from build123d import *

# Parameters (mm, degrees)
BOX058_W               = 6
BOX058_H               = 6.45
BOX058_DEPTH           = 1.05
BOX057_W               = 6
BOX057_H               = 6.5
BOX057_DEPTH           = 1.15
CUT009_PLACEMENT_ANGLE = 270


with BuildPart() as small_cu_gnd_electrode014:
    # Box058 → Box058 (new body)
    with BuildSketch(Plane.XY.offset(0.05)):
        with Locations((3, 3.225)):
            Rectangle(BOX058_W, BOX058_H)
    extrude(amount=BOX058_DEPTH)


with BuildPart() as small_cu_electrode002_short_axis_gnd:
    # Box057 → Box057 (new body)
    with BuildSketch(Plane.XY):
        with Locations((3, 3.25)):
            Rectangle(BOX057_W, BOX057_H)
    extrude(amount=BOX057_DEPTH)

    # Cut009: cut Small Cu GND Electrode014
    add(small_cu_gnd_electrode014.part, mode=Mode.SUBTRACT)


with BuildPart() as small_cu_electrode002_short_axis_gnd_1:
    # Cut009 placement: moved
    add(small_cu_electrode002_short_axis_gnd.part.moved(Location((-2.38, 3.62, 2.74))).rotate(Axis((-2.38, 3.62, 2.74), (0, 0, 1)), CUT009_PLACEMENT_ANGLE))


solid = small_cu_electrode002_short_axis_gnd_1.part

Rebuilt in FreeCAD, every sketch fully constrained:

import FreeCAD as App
import Part
import Sketcher
from FreeCAD import Vector

doc = App.newDocument("Part")
body = doc.addObject("PartDesign::Body", "Body")

# Sketch on XY plane
sketch1 = body.newObject("Sketcher::SketchObject", "Sketch")
sketch1.AttachmentSupport = (doc.getObject("XY_Plane"), [""])
sketch1.MapMode = "FlatFace"
sketch1.AttachmentOffset = App.Placement(Vector(0, 0, 0.05), App.Rotation())
sketch1.addGeometry(Part.LineSegment(Vector(0, 6, 0), Vector(0, 0, 0)), False)
sketch1.addGeometry(Part.LineSegment(Vector(0, 0, 0), Vector(6, 0, 0)), False)
sketch1.addGeometry(Part.LineSegment(Vector(6, 0, 0), Vector(6, 6, 0)), False)
sketch1.addGeometry(Part.LineSegment(Vector(6, 6, 0), Vector(0, 6, 0)), False)
sketch1.addConstraint(Sketcher.Constraint("Coincident", 0, 2, 1, 1))
sketch1.addConstraint(Sketcher.Constraint("Coincident", 1, 2, 2, 1))
sketch1.addConstraint(Sketcher.Constraint("Coincident", 2, 2, 3, 1))
sketch1.addConstraint(Sketcher.Constraint("Coincident", 3, 2, 0, 1))
sketch1.addConstraint(Sketcher.Constraint("Vertical", 0))
sketch1.addConstraint(Sketcher.Constraint("Horizontal", 1))
sketch1.addConstraint(Sketcher.Constraint("Vertical", 2))
sketch1.addConstraint(Sketcher.Constraint("Horizontal", 3))
sketch1.addConstraint(Sketcher.Constraint("Coincident", 0, 2, -1, 1))
sketch1.addConstraint(Sketcher.Constraint("DistanceX", 1, 1, 1, 2, 6.0))
sketch1.addConstraint(Sketcher.Constraint("DistanceY", 0, 2, 0, 1, 6.45))
pad1 = body.newObject("PartDesign::Pad", "Pad")
pad1.Profile = sketch1
pad1.Length = 1.05
body2 = doc.addObject("PartDesign::Body", "Body001")

# Sketch on XY plane
sketch2 = body2.newObject("Sketcher::SketchObject", "Sketch001")
sketch2.AttachmentSupport = (doc.getObject("XY_Plane001"), [""])
sketch2.MapMode = "FlatFace"
sketch2.addGeometry(Part.LineSegment(Vector(0, 6, 0), Vector(0, 0, 0)), False)
sketch2.addGeometry(Part.LineSegment(Vector(0, 0, 0), Vector(6, 0, 0)), False)
sketch2.addGeometry(Part.LineSegment(Vector(6, 0, 0), Vector(6, 6, 0)), False)
sketch2.addGeometry(Part.LineSegment(Vector(6, 6, 0), Vector(0, 6, 0)), False)
sketch2.addConstraint(Sketcher.Constraint("Coincident", 0, 2, 1, 1))
sketch2.addConstraint(Sketcher.Constraint("Coincident", 1, 2, 2, 1))
sketch2.addConstraint(Sketcher.Constraint("Coincident", 2, 2, 3, 1))
sketch2.addConstraint(Sketcher.Constraint("Coincident", 3, 2, 0, 1))
sketch2.addConstraint(Sketcher.Constraint("Vertical", 0))
sketch2.addConstraint(Sketcher.Constraint("Horizontal", 1))
sketch2.addConstraint(Sketcher.Constraint("Vertical", 2))
sketch2.addConstraint(Sketcher.Constraint("Horizontal", 3))
sketch2.addConstraint(Sketcher.Constraint("Coincident", 0, 2, -1, 1))
sketch2.addConstraint(Sketcher.Constraint("DistanceX", 1, 1, 1, 2, 6.0))
sketch2.addConstraint(Sketcher.Constraint("DistanceY", 0, 2, 0, 1, 6.5))
pad2 = body2.newObject("PartDesign::Pad", "Pad001")
pad2.Profile = sketch2
pad2.Length = 1.15
doc.recompute()

boolean = body2.newObject("PartDesign::Boolean", "Boolean")
boolean.Type = "Cut"
boolean.addObjects([body])
body3 = doc.addObject("PartDesign::Body", "Body002")
doc.recompute()

body2.Placement = App.Placement(Vector(-2.38, 3.62, 2.74), App.Rotation(Vector(0, 0, 1), 270))
boolean2 = body3.newObject("PartDesign::Boolean", "Boolean001")
boolean2.Type = "Fuse"
boolean2.addObjects([body2])

doc.recompute()
